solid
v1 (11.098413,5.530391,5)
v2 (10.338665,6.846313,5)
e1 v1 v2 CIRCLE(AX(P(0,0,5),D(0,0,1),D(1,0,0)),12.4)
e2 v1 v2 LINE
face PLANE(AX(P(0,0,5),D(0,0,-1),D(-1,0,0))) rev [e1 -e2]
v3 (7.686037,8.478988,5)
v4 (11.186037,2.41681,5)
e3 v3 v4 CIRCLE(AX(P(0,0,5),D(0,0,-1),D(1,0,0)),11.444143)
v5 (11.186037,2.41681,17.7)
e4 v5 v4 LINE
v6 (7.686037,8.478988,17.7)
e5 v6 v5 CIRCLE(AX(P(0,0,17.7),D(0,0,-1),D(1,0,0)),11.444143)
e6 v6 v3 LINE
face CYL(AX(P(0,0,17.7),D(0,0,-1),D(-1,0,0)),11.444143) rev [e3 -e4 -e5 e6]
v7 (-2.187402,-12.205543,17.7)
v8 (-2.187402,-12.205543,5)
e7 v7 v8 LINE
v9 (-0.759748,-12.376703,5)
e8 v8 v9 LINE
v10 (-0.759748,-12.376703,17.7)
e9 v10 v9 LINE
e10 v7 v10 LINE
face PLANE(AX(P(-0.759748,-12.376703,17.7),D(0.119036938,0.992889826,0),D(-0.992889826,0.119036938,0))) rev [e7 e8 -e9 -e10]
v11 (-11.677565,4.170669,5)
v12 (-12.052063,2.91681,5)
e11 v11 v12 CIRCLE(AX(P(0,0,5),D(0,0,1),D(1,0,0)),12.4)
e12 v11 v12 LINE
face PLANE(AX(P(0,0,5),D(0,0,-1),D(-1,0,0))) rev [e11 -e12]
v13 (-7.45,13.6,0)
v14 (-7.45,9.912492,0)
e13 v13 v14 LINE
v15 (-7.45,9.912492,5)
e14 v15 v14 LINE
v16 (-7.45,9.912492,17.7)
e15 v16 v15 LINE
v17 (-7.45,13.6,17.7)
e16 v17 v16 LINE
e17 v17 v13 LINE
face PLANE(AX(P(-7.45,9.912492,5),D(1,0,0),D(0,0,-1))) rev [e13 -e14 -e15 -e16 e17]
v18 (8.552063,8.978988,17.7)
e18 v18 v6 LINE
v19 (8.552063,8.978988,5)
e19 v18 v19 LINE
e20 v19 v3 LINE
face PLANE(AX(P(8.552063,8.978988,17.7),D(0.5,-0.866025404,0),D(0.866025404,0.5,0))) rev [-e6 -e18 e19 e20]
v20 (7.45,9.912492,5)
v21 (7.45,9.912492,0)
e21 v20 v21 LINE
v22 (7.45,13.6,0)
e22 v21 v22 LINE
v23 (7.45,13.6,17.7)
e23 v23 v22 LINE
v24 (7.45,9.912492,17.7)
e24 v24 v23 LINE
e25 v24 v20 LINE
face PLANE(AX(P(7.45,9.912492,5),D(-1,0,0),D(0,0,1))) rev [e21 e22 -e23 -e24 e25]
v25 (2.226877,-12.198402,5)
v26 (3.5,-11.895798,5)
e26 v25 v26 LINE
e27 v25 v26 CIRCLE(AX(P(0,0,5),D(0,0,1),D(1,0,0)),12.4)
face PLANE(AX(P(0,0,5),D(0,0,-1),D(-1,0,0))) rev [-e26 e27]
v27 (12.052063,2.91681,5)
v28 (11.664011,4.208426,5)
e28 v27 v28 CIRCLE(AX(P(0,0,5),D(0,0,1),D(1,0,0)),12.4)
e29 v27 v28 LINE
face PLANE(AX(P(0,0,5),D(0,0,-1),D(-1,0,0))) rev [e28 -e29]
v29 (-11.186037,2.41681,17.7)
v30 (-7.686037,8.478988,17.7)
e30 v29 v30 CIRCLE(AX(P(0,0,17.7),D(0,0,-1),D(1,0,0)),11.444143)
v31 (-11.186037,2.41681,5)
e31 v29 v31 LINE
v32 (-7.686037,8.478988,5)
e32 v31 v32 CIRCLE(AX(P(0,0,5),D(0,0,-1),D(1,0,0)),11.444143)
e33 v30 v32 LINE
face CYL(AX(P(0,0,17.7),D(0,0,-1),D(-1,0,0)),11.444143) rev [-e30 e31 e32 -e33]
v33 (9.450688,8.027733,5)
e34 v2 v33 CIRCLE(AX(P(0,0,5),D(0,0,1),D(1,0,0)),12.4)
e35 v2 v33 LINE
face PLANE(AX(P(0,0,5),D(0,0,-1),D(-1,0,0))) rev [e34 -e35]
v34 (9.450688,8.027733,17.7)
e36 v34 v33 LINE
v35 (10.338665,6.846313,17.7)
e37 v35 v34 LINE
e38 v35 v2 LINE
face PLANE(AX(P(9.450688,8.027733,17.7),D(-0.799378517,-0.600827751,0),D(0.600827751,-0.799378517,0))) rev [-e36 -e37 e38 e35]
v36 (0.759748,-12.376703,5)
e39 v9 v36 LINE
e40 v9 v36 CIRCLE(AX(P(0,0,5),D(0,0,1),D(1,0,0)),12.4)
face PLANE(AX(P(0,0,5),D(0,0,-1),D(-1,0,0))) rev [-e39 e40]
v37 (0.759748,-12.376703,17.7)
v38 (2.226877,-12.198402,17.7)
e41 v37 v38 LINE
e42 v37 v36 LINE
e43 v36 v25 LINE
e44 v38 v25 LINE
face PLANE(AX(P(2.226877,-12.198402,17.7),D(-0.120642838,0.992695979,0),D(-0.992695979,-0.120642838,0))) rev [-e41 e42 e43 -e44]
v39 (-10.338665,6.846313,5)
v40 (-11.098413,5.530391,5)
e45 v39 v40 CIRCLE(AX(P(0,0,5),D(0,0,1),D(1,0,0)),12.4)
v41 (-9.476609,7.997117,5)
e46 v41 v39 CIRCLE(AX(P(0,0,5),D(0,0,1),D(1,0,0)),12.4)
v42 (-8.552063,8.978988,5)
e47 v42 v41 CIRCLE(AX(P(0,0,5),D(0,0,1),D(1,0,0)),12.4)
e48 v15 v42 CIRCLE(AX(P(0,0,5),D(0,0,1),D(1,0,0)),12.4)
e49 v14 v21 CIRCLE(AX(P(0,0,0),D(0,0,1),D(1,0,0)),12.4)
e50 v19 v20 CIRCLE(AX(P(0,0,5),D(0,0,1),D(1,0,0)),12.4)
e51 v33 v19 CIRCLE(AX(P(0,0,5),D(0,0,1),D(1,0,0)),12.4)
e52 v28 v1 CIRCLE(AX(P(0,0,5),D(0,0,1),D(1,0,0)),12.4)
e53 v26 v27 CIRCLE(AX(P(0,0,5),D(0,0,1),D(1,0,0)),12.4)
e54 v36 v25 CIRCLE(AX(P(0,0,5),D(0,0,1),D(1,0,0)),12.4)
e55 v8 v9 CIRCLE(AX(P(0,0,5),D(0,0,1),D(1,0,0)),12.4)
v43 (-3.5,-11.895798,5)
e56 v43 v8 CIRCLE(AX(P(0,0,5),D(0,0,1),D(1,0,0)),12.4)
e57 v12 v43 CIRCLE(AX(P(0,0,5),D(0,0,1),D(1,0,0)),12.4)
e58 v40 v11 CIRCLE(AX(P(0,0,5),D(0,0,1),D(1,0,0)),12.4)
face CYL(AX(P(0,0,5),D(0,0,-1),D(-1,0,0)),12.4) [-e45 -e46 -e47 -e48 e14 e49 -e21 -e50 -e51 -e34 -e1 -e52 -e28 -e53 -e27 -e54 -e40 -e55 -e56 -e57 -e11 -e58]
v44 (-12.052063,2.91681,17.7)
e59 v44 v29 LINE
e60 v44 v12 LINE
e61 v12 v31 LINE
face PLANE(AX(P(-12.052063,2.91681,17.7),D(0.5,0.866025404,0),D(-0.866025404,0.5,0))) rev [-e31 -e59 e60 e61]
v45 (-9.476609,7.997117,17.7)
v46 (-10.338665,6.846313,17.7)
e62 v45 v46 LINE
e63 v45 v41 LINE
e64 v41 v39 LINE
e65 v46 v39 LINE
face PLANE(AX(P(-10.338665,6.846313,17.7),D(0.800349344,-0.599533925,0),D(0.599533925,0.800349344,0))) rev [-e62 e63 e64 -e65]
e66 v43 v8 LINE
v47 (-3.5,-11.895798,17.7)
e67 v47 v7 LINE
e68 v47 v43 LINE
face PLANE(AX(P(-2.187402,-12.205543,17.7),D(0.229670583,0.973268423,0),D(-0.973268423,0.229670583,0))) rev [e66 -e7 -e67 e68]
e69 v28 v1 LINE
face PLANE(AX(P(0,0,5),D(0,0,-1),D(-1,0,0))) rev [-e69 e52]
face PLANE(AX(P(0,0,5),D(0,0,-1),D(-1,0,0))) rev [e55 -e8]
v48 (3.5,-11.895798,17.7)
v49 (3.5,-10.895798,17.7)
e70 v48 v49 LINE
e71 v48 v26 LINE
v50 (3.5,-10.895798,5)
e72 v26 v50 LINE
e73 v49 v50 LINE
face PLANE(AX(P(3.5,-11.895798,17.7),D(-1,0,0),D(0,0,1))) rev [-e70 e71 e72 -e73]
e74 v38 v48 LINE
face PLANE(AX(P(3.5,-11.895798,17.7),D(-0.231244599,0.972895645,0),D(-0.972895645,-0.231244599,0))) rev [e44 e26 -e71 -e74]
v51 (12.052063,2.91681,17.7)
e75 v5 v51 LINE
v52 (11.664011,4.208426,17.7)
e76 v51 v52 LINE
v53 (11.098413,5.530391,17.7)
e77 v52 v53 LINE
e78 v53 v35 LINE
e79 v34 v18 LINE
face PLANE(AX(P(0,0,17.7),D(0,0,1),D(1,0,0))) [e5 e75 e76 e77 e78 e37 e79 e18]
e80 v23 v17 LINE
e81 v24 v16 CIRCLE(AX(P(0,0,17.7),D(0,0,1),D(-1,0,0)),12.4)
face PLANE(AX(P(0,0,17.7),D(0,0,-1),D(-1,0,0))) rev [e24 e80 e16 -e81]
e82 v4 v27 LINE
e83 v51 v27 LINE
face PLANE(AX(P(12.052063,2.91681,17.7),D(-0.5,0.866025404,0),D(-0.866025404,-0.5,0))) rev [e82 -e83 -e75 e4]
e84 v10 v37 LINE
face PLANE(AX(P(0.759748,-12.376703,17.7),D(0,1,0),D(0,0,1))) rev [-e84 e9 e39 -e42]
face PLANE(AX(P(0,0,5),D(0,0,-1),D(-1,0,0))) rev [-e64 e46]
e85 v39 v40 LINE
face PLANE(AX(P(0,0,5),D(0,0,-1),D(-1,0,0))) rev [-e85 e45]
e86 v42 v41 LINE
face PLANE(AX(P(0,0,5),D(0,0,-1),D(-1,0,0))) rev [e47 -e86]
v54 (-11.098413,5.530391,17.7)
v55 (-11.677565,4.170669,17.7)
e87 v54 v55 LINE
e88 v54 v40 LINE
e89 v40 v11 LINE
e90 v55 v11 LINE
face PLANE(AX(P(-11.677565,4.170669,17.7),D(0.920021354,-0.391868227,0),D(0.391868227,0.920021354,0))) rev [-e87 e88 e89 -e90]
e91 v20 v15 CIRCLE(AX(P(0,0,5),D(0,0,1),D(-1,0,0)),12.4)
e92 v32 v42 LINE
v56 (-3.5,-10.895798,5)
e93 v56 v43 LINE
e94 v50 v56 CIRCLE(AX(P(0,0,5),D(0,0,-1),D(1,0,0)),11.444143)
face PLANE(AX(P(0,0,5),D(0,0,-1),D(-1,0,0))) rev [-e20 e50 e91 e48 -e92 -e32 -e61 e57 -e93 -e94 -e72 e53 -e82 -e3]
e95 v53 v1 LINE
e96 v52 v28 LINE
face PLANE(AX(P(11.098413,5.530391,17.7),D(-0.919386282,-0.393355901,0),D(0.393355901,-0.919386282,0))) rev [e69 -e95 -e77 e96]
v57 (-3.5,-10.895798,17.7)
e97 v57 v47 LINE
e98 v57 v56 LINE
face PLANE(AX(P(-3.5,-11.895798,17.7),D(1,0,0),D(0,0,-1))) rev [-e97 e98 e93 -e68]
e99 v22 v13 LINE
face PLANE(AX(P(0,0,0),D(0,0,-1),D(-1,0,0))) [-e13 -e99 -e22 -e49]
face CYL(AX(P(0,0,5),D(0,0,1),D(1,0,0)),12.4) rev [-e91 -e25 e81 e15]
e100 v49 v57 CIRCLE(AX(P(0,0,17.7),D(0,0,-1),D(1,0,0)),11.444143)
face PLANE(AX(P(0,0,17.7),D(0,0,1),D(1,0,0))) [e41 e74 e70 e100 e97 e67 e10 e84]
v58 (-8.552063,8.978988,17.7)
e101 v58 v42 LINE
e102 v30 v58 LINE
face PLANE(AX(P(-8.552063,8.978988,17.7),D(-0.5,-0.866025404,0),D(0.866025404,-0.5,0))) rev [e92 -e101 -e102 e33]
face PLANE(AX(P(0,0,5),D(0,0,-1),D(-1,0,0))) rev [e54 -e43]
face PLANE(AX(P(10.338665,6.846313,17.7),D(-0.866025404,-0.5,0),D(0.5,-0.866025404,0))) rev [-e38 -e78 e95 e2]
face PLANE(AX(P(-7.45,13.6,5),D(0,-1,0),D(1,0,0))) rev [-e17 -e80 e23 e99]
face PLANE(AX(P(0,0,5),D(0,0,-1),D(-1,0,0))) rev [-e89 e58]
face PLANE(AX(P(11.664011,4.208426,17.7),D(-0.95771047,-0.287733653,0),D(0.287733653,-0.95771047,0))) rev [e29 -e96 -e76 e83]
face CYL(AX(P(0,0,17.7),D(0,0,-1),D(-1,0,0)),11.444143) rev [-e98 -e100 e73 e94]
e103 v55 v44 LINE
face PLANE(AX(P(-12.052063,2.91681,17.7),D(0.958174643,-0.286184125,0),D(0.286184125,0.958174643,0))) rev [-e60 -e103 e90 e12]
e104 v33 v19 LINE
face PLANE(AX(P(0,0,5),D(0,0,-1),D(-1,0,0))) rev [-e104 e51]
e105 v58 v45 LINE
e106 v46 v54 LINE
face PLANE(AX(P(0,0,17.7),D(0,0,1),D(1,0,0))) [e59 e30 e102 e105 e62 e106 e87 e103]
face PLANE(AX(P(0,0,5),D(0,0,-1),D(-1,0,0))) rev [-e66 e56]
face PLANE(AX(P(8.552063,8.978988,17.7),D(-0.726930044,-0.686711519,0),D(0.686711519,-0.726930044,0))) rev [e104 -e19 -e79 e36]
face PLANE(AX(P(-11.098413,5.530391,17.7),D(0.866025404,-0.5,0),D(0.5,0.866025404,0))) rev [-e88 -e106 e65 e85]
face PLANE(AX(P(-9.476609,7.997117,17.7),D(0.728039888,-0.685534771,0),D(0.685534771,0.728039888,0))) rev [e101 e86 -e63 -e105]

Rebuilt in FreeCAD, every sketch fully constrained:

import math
import FreeCAD as App
import Part
import Sketcher
from FreeCAD import Vector
Q = App.Units.Quantity

doc = App.newDocument("Part")
body = doc.addObject("PartDesign::Body", "Body")

# Sketch on XY plane
sketch1 = body.newObject("Sketcher::SketchObject", "Sketch")
sketch1.AttachmentSupport = (doc.getObject("XY_Plane"), [""])
sketch1.MapMode = "FlatFace"
sketch1.addGeometry(Part.LineSegment(Vector(-13, 15, 0), Vector(-13, -13, 0)), False)
sketch1.addGeometry(Part.LineSegment(Vector(-13, -13, 0), Vector(13, -13, 0)), False)
sketch1.addGeometry(Part.LineSegment(Vector(13, -13, 0), Vector(13, 15, 0)), False)
sketch1.addGeometry(Part.LineSegment(Vector(13, 15, 0), Vector(-13, 15, 0)), False)
sketch1.addConstraint(Sketcher.Constraint("Coincident", 0, 2, 1, 1))
sketch1.addConstraint(Sketcher.Constraint("Coincident", 1, 2, 2, 1))
sketch1.addConstraint(Sketcher.Constraint("Coincident", 2, 2, 3, 1))
sketch1.addConstraint(Sketcher.Constraint("Coincident", 3, 2, 0, 1))
sketch1.addConstraint(Sketcher.Constraint("Vertical", 0))
sketch1.addConstraint(Sketcher.Constraint("Horizontal", 1))
sketch1.addConstraint(Sketcher.Constraint("Vertical", 2))
sketch1.addConstraint(Sketcher.Constraint("Horizontal", 3))
sketch1.addConstraint(Sketcher.Constraint("DistanceX", 1, 1, 1, 2, 26.816019))
sketch1.addConstraint(Sketcher.Constraint("DistanceY", 0, 2, 0, 1, 28.301671))
sketch1.addConstraint(Sketcher.Constraint("DistanceY", 0, 2, -1, 1, 13.3837))
sketch1.addConstraint(Sketcher.Constraint("DistanceX", -1, 1, 1, 2, 13.482292))
pad1 = body.newObject("PartDesign::Pad", "Pad")
pad1.Profile = sketch1
pad1.Length = 5

# Sketch on XY plane
sketch2 = body.newObject("Sketcher::SketchObject", "Sketch001")
sketch2.AttachmentSupport = (doc.getObject("XY_Plane"), [""])
sketch2.MapMode = "FlatFace"
sketch2.addGeometry(Part.LineSegment(Vector(-17.4, 23.6, 0), Vector(-17.4, 14, 0)), False)
sketch2.addGeometry(Part.ArcOfCircle(Part.Circle(Vector(0, 0, 0), Vector(0, 0, 1), 22.4), math.radians(141), math.radians(399)), False)
sketch2.addGeometry(Part.LineSegment(Vector(17.4, 14, 0), Vector(17.4, 23.6, 0)), False)
sketch2.addGeometry(Part.LineSegment(Vector(17.4, 23.6, 0), Vector(-17.4, 23.6, 0)), False)
sketch2.addGeometry(Part.LineSegment(Vector(-7.5, 9.9, 0), Vector(-7.5, 13.6, 0)), False)
sketch2.addGeometry(Part.LineSegment(Vector(-7.5, 13.6, 0), Vector(7.5, 13.6, 0)), False)
sketch2.addGeometry(Part.LineSegment(Vector(7.5, 13.6, 0), Vector(7.5, 9.9, 0)), False)
sketch2.addGeometry(Part.ArcOfCircle(Part.Circle(Vector(0, 0, 0), Vector(0, 0, 1), 12.4), math.radians(127), math.radians(413)), False)
sketch2.addConstraint(Sketcher.Constraint("Coincident", 0, 2, 1, 1))
sketch2.addConstraint(Sketcher.Constraint("Coincident", 1, 2, 2, 1))
sketch2.addConstraint(Sketcher.Constraint("Coincident", 2, 2, 3, 1))
sketch2.addConstraint(Sketcher.Constraint("Coincident", 3, 2, 0, 1))
sketch2.addConstraint(Sketcher.Constraint("Coincident", 4, 2, 5, 1))
sketch2.addConstraint(Sketcher.Constraint("Coincident", 5, 2, 6, 1))
sketch2.addConstraint(Sketcher.Constraint("Coincident", 6, 2, 7, 2))
sketch2.addConstraint(Sketcher.Constraint("Coincident", 7, 1, 4, 1))
sketch2.addConstraint(Sketcher.Constraint("Vertical", 0))
sketch2.addConstraint(Sketcher.Constraint("Vertical", 2))
sketch2.addConstraint(Sketcher.Constraint("Horizontal", 3))
sketch2.addConstraint(Sketcher.Constraint("Vertical", 4))
sketch2.addConstraint(Sketcher.Constraint("Horizontal", 5))
sketch2.addConstraint(Sketcher.Constraint("Vertical", 6))
sketch2.addConstraint(Sketcher.Constraint("Coincident", 1, 3, -1, 1))
sketch2.addConstraint(Sketcher.Constraint("Coincident", 7, 3, -1, 1))
sketch2.addConstraint(Sketcher.Constraint("Horizontal", 0, 2, 1, 2))
sketch2.addConstraint(Sketcher.Constraint("Horizontal", 6, 2, 7, 1))
sketch2.addConstraint(Sketcher.Constraint("Radius", 1, 22.4))
sketch2.addConstraint(Sketcher.Constraint("Radius", 7, 12.4))
sketch2.addConstraint(Sketcher.Constraint("DistanceX", 3, 2, 3, 1, 34.9))
sketch2.addConstraint(Sketcher.Constraint("DistanceX", 5, 1, 5, 2, 14.9))
sketch2.addConstraint(Sketcher.Constraint("DistanceY", 4, 2, 3, 2, 10.0))
sketch2.addConstraint(Sketcher.Constraint("DistanceY", -1, 1, 2, 2, 23.6))
pocket1 = body.newObject("PartDesign::Pocket", "Pocket")
pocket1.Profile = sketch2
pocket1.Length = 5
pocket1.Reversed = True

# Sketch on XY plane
sketch3 = body.newObject("Sketcher::SketchObject", "Sketch002")
sketch3.AttachmentSupport = (doc.getObject("XY_Plane"), [""])
sketch3.MapMode = "FlatFace"
sketch3.AttachmentOffset = App.Placement(Vector(0, 0, 5), App.Rotation())
sketch3.addGeometry(Part.LineSegment(Vector(-7.5, 13.6, 0), Vector(-7.5, 9.9, 0)), False)
sketch3.addGeometry(Part.LineSegment(Vector(-7.5, 9.9, 0), Vector(7.5, 9.9, 0)), False)
sketch3.addGeometry(Part.LineSegment(Vector(7.5, 9.9, 0), Vector(7.5, 13.6, 0)), False)
sketch3.addGeometry(Part.LineSegment(Vector(7.5, 13.6, 0), Vector(-7.5, 13.6, 0)), False)
sketch3.addGeometry(Part.LineSegment(Vector(3.5, -11.9, 0), Vector(3.5, -10.9, 0)), False)
sketch3.addGeometry(Part.ArcOfCircle(Part.Circle(Vector(0, 0, 0), Vector(0, 0, 1), 11.4), math.radians(-108), math.radians(-72)), False)
sketch3.addGeometry(Part.LineSegment(Vector(-3.5, -10.9, 0), Vector(-3.5, -11.9, 0)), False)
sketch3.addGeometry(Part.LineSegment(Vector(-3.5, -11.9, 0), Vector(-2.2, -12.2, 0)), False)
sketch3.addGeometry(Part.LineSegment(Vector(-2.2, -12.2, 0), Vector(-0.8, -12.4, 0)), False)
sketch3.addGeometry(Part.LineSegment(Vector(-0.8, -12.4, 0), Vector(0.8, -12.4, 0)), False)
sketch3.addGeometry(Part.LineSegment(Vector(0.8, -12.4, 0), Vector(2.2, -12.2, 0)), False)
sketch3.addGeometry(Part.LineSegment(Vector(2.2, -12.2, 0), Vector(3.5, -11.9, 0)), False)
sketch3.addGeometry(Part.LineSegment(Vector(-12.1, 2.9, 0), Vector(-11.2, 2.4, 0)), False)
sketch3.addGeometry(Part.ArcOfCircle(Part.Circle(Vector(0, 0, 0), Vector(0, 0, 1), 11.4), math.radians(132), math.radians(168)), False)
sketch3.addGeometry(Part.LineSegment(Vector(-7.7, 8.5, 0), Vector(-8.6, 9, 0)), False)
sketch3.addGeometry(Part.LineSegment(Vector(-8.6, 9, 0), Vector(-9.5, 8, 0)), False)
sketch3.addGeometry(Part.LineSegment(Vector(-9.5, 8, 0), Vector(-10.3, 6.8, 0)), False)
sketch3.addGeometry(Part.LineSegment(Vector(-10.3, 6.8, 0), Vector(-11.1, 5.5, 0)), False)
sketch3.addGeometry(Part.LineSegment(Vector(-11.1, 5.5, 0), Vector(-11.7, 4.2, 0)), False)
sketch3.addGeometry(Part.LineSegment(Vector(-11.7, 4.2, 0), Vector(-12.1, 2.9, 0)), False)
sketch3.addGeometry(Part.LineSegment(Vector(8.6, 9, 0), Vector(7.7, 8.5, 0)), False)
sketch3.addGeometry(Part.ArcOfCircle(Part.Circle(Vector(0, 0, 0), Vector(0, 0, 1), 11.4), math.radians(12), math.radians(48)), False)
sketch3.addGeometry(Part.LineSegment(Vector(11.2, 2.4, 0), Vector(12.1, 2.9, 0)), False)
sketch3.addGeometry(Part.LineSegment(Vector(12.1, 2.9, 0), Vector(11.7, 4.2, 0)), False)
sketch3.addGeometry(Part.LineSegment(Vector(11.7, 4.2, 0), Vector(11.1, 5.5, 0)), False)
sketch3.addGeometry(Part.LineSegment(Vector(11.1, 5.5, 0), Vector(10.3, 6.8, 0)), False)
sketch3.addGeometry(Part.LineSegment(Vector(10.3, 6.8, 0), Vector(9.5, 8, 0)), False)
sketch3.addGeometry(Part.LineSegment(Vector(9.5, 8, 0), Vector(8.6, 9, 0)), False)
sketch3.addConstraint(Sketcher.Constraint("Coincident", 0, 2, 1, 1))
sketch3.addConstraint(Sketcher.Constraint("Coincident", 1, 2, 2, 1))
sketch3.addConstraint(Sketcher.Constraint("Coincident", 2, 2, 3, 1))
sketch3.addConstraint(Sketcher.Constraint("Coincident", 3, 2, 0, 1))
sketch3.addConstraint(Sketcher.Constraint("Coincident", 4, 2, 5, 2))
sketch3.addConstraint(Sketcher.Constraint("Coincident", 5, 1, 6, 1))
sketch3.addConstraint(Sketcher.Constraint("Coincident", 6, 2, 7, 1))
sketch3.addConstraint(Sketcher.Constraint("Coincident", 7, 2, 8, 1))
sketch3.addConstraint(Sketcher.Constraint("Coincident", 8, 2, 9, 1))
sketch3.addConstraint(Sketcher.Constraint("Coincident", 9, 2, 10, 1))
sketch3.addConstraint(Sketcher.Constraint("Coincident", 10, 2, 11, 1))
sketch3.addConstraint(Sketcher.Constraint("Coincident", 11, 2, 4, 1))
sketch3.addConstraint(Sketcher.Constraint("Coincident", 12, 2, 13, 2))
sketch3.addConstraint(Sketcher.Constraint("Coincident", 13, 1, 14, 1))
sketch3.addConstraint(Sketcher.Constraint("Coincident", 14, 2, 15, 1))
sketch3.addConstraint(Sketcher.Constraint("Coincident", 15, 2, 16, 1))
sketch3.addConstraint(Sketcher.Constraint("Coincident", 16, 2, 17, 1))
sketch3.addConstraint(Sketcher.Constraint("Coincident", 17, 2, 18, 1))
sketch3.addConstraint(Sketcher.Constraint("Coincident", 18, 2, 19, 1))
sketch3.addConstraint(Sketcher.Constraint("Coincident", 19, 2, 12, 1))
sketch3.addConstraint(Sketcher.Constraint("Coincident", 20, 2, 21, 2))
sketch3.addConstraint(Sketcher.Constraint("Coincident", 21, 1, 22, 1))
sketch3.addConstraint(Sketcher.Constraint("Coincident", 22, 2, 23, 1))
sketch3.addConstraint(Sketcher.Constraint("Coincident", 23, 2, 24, 1))
sketch3.addConstraint(Sketcher.Constraint("Coincident", 24, 2, 25, 1))
sketch3.addConstraint(Sketcher.Constraint("Coincident", 25, 2, 26, 1))
sketch3.addConstraint(Sketcher.Constraint("Coincident", 26, 2, 27, 1))
sketch3.addConstraint(Sketcher.Constraint("Coincident", 27, 2, 20, 1))
sketch3.addConstraint(Sketcher.Constraint("Vertical", 0))
sketch3.addConstraint(Sketcher.Constraint("Horizontal", 1))
sketch3.addConstraint(Sketcher.Constraint("Vertical", 2))
sketch3.addConstraint(Sketcher.Constraint("Horizontal", 3))
sketch3.addConstraint(Sketcher.Constraint("Vertical", 4))
sketch3.addConstraint(Sketcher.Constraint("Vertical", 6))
sketch3.addConstraint(Sketcher.Constraint("Horizontal", 9))
sketch3.addConstraint(Sketcher.Constraint("Coincident", 5, 3, -1, 1))
sketch3.addConstraint(Sketcher.Constraint("Coincident", 13, 3, -1, 1))
sketch3.addConstraint(Sketcher.Constraint("Coincident", 21, 3, -1, 1))
sketch3.addConstraint(Sketcher.Constraint("Equal", 5, 13))
sketch3.addConstraint(Sketcher.Constraint("Equal", 13, 21))
sketch3.addConstraint(Sketcher.Constraint("Symmetric", 6, 2, 11, 2, -2))
sketch3.addConstraint(Sketcher.Constraint("Symmetric", 19, 2, 22, 2, -2))
sketch3.addConstraint(Sketcher.Constraint("Symmetric", 17, 2, 24, 2, -2))
sketch3.addConstraint(Sketcher.Constraint("Symmetric", 16, 2, 25, 2, -2))
sketch3.addConstraint(Sketcher.Constraint("Symmetric", 14, 2, 27, 2, -2))
sketch3.addConstraint(Sketcher.Constraint("Parallel", 12, 14))
sketch3.addConstraint(Sketcher.Constraint("Perpendicular", 14, 17))
sketch3.addConstraint(Sketcher.Constraint("Parallel", 20, 22))
sketch3.addConstraint(Sketcher.Constraint("Perpendicular", 22, 25))
sketch3.addConstraint(Sketcher.Constraint("Equal", 12, 14))
sketch3.addConstraint(Sketcher.Constraint("Equal", 7, 15))
sketch3.addConstraint(Sketcher.Constraint("Equal", 8, 16))
sketch3.addConstraint(Sketcher.Constraint("Equal", 10, 18))
sketch3.addConstraint(Sketcher.Constraint("Equal", 11, 19))
sketch3.addConstraint(Sketcher.Constraint("Equal", 15, 23))
sketch3.addConstraint(Sketcher.Constraint("Equal", 16, 24))
sketch3.addConstraint(Sketcher.Constraint("Equal", 18, 26))
sketch3.addConstraint(Sketcher.Constraint("Equal", 19, 27))
sketch3.addConstraint(Sketcher.Constraint("DistanceY", 4, 1, 4, 2, 1.0))
sketch3.addConstraint(Sketcher.Constraint("Angle", 12, Q("-30 deg")))
sketch3.addConstraint(Sketcher.Constraint("Distance", 12, 1.0))
sketch3.addConstraint(Sketcher.Constraint("DistanceX", 1, 1, 1, 2, 14.9))
sketch3.addConstraint(Sketcher.Constraint("DistanceX", 5, 1, 4, 2, 7.0))
sketch3.addConstraint(Sketcher.Constraint("DistanceY", -1, 1, 2, 2, 13.6))
sketch3.addConstraint(Sketcher.Constraint("DistanceX", 12, 2, 13, 1, 3.5))
sketch3.addConstraint(Sketcher.Constraint("DistanceX", 0, 2, -1, 1, 7.45))
sketch3.addConstraint(Sketcher.Constraint("Radius", 5, 11.444143))
sketch3.addConstraint(Sketcher.Constraint("DistanceY", 9, 2, 10, 2, 0.178301))
sketch3.addConstraint(Sketcher.Constraint("DistanceX", 18, 2, 16, 2, 1.338899))
sketch3.addConstraint(Sketcher.Constraint("DistanceX", 18, 2, 14, 2, 3.125502))
sketch3.addConstraint(Sketcher.Constraint("DistanceY", 24, 2, 1, 2, 4.382102))
sketch3.addConstraint(Sketcher.Constraint("Distance", 7, 1.348649))
sketch3.addConstraint(Sketcher.Constraint("Distance", 11, 1.308592))
sketch3.addConstraint(Sketcher.Constraint("DistanceX", 9, 1, 9, 2, 1.519496))
sketch3.addConstraint(Sketcher.Constraint("DistanceY", 0, 2, 0, 1, 3.687508))
sketch3.addConstraint(Sketcher.Constraint("DistanceY", -1, 1, 12, 2, 2.41681))
sketch3.addConstraint(Sketcher.Constraint("DistanceX", 15, 2, -1, 1, 9.476609))
sketch3.addConstraint(Sketcher.Constraint("DistanceX", -1, 1, 23, 2, 11.664011))
sketch3.addConstraint(Sketcher.Constraint("DistanceY", 8, 2, 7, 2, 0.171161))
pad2 = body.newObject("PartDesign::Pad", "Pad001")
pad2.Profile = sketch3
pad2.Length = 12.7

# Sketch on XY plane
sketch4 = body.newObject("Sketcher::SketchObject", "Sketch003")
sketch4.AttachmentSupport = (doc.getObject("XY_Plane"), [""])
sketch4.MapMode = "FlatFace"
sketch4.AttachmentOffset = App.Placement(Vector(0, 0, 17.7), App.Rotation())
sketch4.addGeometry(Part.LineSegment(Vector(-7, 10, 0), Vector(7, 10, 0)), False)
sketch4.addGeometry(Part.ArcOfCircle(Part.Circle(Vector(0, 0, 0), Vector(0, 0, 1), 12), math.radians(53), math.radians(127)), False)
sketch4.addConstraint(Sketcher.Constraint("Coincident", 0, 1, 1, 2))
sketch4.addConstraint(Sketcher.Constraint("Coincident", 1, 1, 0, 2))
sketch4.addConstraint(Sketcher.Constraint("Horizontal", 0))
sketch4.addConstraint(Sketcher.Constraint("Coincident", 1, 3, -1, 1))
sketch4.addConstraint(Sketcher.Constraint("Radius", 1, 12.4))
sketch4.addConstraint(Sketcher.Constraint("DistanceX", 0, 1, 0, 2, 14.9))
pocket2 = body.newObject("PartDesign::Pocket", "Pocket001")
pocket2.Profile = sketch4
pocket2.Length = 12.7

doc.recompute()
